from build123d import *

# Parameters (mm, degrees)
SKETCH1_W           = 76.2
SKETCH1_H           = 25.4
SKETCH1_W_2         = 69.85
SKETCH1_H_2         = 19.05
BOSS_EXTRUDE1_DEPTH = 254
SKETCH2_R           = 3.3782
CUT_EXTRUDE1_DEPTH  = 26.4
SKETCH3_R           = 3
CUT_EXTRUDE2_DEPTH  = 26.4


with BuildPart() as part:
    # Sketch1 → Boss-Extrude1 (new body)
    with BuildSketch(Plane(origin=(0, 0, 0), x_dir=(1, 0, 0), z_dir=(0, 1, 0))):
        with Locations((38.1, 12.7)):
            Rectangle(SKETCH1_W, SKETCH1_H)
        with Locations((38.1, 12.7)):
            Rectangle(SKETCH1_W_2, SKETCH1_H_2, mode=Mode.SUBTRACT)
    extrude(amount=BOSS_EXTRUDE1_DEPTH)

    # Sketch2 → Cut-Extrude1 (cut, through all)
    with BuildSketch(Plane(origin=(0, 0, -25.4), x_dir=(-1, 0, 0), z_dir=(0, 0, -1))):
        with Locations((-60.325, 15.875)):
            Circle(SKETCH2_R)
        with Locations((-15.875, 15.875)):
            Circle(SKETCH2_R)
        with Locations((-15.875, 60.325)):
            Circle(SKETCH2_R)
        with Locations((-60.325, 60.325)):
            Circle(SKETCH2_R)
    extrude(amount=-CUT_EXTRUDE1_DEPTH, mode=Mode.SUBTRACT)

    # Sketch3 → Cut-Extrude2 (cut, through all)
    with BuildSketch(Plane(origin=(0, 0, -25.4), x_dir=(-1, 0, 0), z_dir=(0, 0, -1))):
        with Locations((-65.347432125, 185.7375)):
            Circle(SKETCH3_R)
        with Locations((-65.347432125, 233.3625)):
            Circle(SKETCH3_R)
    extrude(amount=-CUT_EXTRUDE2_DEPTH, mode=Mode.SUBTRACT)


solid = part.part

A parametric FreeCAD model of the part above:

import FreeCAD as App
import Part
import Sketcher

V = App.Vector
Q = App.Units.Quantity

doc = App.newDocument("Part")
body = doc.addObject("PartDesign::Body", "Body")

# Sketch on XZ plane
sketch1 = body.newObject("Sketcher::SketchObject", "Sketch")
sketch1.AttachmentSupport = (doc.getObject("XZ_Plane"), [""])
sketch1.MapMode = "FlatFace"
sketch1.addGeometry([
    Part.LineSegment(V(0, -25.4, 0), V(0, 0, 0)),  # 0
    Part.LineSegment(V(0, 0, 0), V(76.2, 0, 0)),  # 1
    Part.LineSegment(V(76.2, 0, 0), V(76.2, -25.4, 0)),  # 2
    Part.LineSegment(V(76.2, -25.4, 0), V(0, -25.4, 0)),  # 3
    Part.LineSegment(V(73.025, -3.175, 0), V(3.175, -3.175, 0)),  # 4
    Part.LineSegment(V(3.175, -3.175, 0), V(3.175, -22.225, 0)),  # 5
    Part.LineSegment(V(3.175, -22.225, 0), V(73.025, -22.225, 0)),  # 6
    Part.LineSegment(V(73.025, -22.225, 0), V(73.025, -3.175, 0)),  # 7
], False)
sketch1.addConstraint([
    Sketcher.Constraint("Coincident", 0, 2, 1, 1),
    Sketcher.Constraint("Coincident", 1, 2, 2, 1),
    Sketcher.Constraint("Coincident", 2, 2, 3, 1),
    Sketcher.Constraint("Coincident", 3, 2, 0, 1),
    Sketcher.Constraint("Coincident", 4, 2, 5, 1),
    Sketcher.Constraint("Coincident", 5, 2, 6, 1),
    Sketcher.Constraint("Coincident", 6, 2, 7, 1),
    Sketcher.Constraint("Coincident", 7, 2, 4, 1),
    Sketcher.Constraint("Vertical", 0),
    Sketcher.Constraint("Horizontal", 1),
    Sketcher.Constraint("Vertical", 2),
    Sketcher.Constraint("Horizontal", 3),
    Sketcher.Constraint("Horizontal", 4),
    Sketcher.Constraint("Vertical", 5),
    Sketcher.Constraint("Horizontal", 6),
    Sketcher.Constraint("Vertical", 7),
    Sketcher.Constraint("Coincident", 0, 2, -1, 1),
    Sketcher.Constraint("DistanceX", 1, 1, 1, 2, Q("3 in")),
    Sketcher.Constraint("DistanceY", 0, 1, 0, 2, Q("1 in")),
    Sketcher.Constraint("DistanceX", 4, 2, 4, 1, Q("2.75 in")),
    Sketcher.Constraint("DistanceY", 5, 2, 5, 1, Q("0.75 in")),
    Sketcher.Constraint("DistanceX", -1, 1, 4, 2, Q("0.125 in")),
    Sketcher.Constraint("DistanceY", 4, 2, -1, 1, Q("0.125 in")),
])
pad1 = body.newObject("PartDesign::Pad", "Pad")
pad1.Profile = sketch1
pad1.Length = Q("10 in")
pad1.Reversed = True

# Sketch on XY plane
sketch2 = body.newObject("Sketcher::SketchObject", "Sketch001")
sketch2.AttachmentSupport = (doc.getObject("XY_Plane"), [""])
sketch2.MapMode = "FlatFace"
sketch2.AttachmentOffset = App.Placement(V(0, 0, -1 * 25.4), App.Rotation())
sketch2.addGeometry([
    Part.Circle(V(60.325, 15.875, 0), V(0, 0, 1), 3.3782),
    Part.Circle(V(15.875, 15.875, 0), V(0, 0, 1), 3.3782),
    Part.Circle(V(15.875, 60.325, 0), V(0, 0, 1), 3.3782),
    Part.Circle(V(60.325, 60.325, 0), V(0, 0, 1), 3.3782),
], False)
sketch2.addConstraint([
    Sketcher.Constraint("Equal", 0, 1),
    Sketcher.Constraint("Equal", 1, 2),
    Sketcher.Constraint("Equal", 2, 3),
    Sketcher.Constraint("Horizontal", 0, 3, 1, 3),
    Sketcher.Constraint("Horizontal", 2, 3, 3, 3),
    Sketcher.Constraint("Vertical", 1, 3, 2, 3),
    Sketcher.Constraint("Vertical", 0, 3, 3, 3),
    Sketcher.Constraint("Diameter", 0, Q("0.266 in")),
    Sketcher.Constraint("DistanceX", 1, 3, 0, 3, Q("1.75 in")),
    Sketcher.Constraint("DistanceY", 1, 3, 2, 3, Q("1.75 in")),
    Sketcher.Constraint("DistanceX", -1, 1, 0, 3, Q("2.375 in")),
    Sketcher.Constraint("DistanceY", -1, 1, 0, 3, Q("0.625 in")),
])
pocket1 = body.newObject("PartDesign::Pocket", "Pocket")
pocket1.Profile = sketch2
pocket1.Type = "ThroughAll"
pocket1.Reversed = True

# Sketch on XY plane
sketch3 = body.newObject("Sketcher::SketchObject", "Sketch002")
sketch3.AttachmentSupport = (doc.getObject("XY_Plane"), [""])
sketch3.MapMode = "FlatFace"
sketch3.AttachmentOffset = App.Placement(V(0, 0, -1 * 25.4), App.Rotation())
sketch3.addGeometry([
    Part.Circle(V(65.347432, 185.7375, 0), V(0, 0, 1), 3),
    Part.Circle(V(65.347432, 233.3625, 0), V(0, 0, 1), 3),
], False)
sketch3.addConstraint([
    Sketcher.Constraint("Equal", 0, 1),
    Sketcher.Constraint("Vertical", 0, 3, 1, 3),
    Sketcher.Constraint("Diameter", 0, Q("6 mm")),
    Sketcher.Constraint("DistanceY", -1, 1, 0, 3, Q("7.3125 in")),
    Sketcher.Constraint("DistanceY", -1, 1, 1, 3, Q("9.1875 in")),
    Sketcher.Constraint("DistanceX", -1, 1, 0, 3, Q("65.347432 mm")),
])
pocket2 = body.newObject("PartDesign::Pocket", "Pocket001")
pocket2.Profile = sketch3
pocket2.Type = "ThroughAll"
pocket2.Reversed = True

doc.recompute()
